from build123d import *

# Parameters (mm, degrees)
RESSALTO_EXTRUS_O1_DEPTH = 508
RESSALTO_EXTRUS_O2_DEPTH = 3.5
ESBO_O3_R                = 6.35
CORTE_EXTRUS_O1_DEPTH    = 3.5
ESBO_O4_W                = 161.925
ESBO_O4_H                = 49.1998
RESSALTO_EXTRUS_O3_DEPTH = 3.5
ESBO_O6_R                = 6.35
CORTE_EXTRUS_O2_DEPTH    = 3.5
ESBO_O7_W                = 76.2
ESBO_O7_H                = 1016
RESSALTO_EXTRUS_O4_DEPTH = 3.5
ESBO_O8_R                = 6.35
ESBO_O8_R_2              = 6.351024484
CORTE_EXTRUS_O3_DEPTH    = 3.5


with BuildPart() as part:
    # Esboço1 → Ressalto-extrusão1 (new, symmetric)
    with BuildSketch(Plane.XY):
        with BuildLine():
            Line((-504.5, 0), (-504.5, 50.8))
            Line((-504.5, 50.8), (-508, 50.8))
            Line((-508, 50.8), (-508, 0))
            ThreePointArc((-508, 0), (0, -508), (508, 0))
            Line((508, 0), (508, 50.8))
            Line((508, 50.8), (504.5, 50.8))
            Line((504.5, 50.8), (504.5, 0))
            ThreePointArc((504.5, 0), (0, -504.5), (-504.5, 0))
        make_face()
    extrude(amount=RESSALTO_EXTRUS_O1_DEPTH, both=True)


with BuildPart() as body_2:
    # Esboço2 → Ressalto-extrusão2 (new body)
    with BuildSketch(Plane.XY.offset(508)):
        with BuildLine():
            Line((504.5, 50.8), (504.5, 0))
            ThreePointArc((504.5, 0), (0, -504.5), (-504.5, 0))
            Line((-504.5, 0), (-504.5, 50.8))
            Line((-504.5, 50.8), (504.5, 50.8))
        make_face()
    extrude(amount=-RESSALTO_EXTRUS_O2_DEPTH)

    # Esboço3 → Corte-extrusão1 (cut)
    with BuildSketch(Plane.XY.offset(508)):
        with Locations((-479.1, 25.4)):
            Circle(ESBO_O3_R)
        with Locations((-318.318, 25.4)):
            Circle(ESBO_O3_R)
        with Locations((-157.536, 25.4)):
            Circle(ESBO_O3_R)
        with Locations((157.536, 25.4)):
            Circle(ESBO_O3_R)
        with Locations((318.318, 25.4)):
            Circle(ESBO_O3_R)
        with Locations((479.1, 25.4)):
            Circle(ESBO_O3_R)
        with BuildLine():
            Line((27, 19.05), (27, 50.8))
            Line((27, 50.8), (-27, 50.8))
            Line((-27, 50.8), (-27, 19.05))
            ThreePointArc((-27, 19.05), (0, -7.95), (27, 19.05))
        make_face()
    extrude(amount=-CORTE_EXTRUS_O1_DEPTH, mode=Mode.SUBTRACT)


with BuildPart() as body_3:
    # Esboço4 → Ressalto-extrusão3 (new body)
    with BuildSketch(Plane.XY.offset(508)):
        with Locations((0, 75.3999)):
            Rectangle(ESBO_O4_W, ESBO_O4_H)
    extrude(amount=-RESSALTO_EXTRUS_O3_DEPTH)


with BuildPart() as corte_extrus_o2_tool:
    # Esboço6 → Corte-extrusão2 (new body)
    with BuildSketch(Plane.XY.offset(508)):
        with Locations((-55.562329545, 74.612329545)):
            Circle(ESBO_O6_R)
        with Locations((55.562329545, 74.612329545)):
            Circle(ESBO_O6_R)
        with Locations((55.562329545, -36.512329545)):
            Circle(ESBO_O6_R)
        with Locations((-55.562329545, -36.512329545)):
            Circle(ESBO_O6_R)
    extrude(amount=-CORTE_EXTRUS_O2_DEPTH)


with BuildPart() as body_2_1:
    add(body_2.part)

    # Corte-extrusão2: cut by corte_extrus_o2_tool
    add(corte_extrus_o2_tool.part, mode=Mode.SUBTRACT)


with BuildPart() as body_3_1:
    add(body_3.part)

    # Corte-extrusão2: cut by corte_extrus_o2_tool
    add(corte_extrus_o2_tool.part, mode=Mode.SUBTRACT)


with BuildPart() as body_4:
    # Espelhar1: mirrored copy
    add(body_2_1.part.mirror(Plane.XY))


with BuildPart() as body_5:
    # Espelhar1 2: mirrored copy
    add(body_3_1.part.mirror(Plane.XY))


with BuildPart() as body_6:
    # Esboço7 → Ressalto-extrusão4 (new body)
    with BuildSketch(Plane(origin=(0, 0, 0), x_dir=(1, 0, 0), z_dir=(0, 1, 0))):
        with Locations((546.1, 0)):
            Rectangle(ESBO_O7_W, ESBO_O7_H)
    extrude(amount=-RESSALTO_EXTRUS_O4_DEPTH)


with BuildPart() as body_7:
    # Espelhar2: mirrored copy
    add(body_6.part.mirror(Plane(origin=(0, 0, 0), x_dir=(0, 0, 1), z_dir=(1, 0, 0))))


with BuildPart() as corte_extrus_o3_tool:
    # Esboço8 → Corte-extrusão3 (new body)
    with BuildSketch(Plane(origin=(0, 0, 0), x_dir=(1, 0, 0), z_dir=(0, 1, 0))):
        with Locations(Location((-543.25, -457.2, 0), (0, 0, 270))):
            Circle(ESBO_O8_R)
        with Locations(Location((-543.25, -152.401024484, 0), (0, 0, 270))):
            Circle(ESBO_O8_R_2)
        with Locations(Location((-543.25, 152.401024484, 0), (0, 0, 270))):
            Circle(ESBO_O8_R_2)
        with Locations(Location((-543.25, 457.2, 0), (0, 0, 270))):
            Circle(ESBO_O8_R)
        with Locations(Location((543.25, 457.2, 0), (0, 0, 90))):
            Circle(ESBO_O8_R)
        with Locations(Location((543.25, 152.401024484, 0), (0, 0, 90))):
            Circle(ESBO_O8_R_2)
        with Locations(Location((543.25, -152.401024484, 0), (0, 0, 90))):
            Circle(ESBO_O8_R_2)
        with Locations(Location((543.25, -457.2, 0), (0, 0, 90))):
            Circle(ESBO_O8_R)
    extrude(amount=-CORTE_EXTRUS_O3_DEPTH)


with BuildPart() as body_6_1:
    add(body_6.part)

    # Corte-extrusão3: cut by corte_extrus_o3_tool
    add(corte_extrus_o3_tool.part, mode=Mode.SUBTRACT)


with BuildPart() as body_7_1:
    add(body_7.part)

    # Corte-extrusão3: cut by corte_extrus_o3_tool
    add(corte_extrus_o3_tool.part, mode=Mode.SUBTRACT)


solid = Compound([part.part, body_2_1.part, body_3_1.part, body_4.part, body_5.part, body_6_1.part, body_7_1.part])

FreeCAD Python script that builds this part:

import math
import FreeCAD as App
import Part
import Sketcher
from FreeCAD import Vector
Q = App.Units.Quantity


def add_polygon(sketch, points):
    """Adds a closed chain of lines whose ends are joined by coincident constraints."""
    first, n = sketch.GeometryCount, len(points)
    for a, b in zip(points, points[1:] + points[:1]):
        sketch.addGeometry(Part.LineSegment(App.Vector(*a, 0), App.Vector(*b, 0)), False)
    for i in range(n):
        sketch.addConstraint(Sketcher.Constraint("Coincident", first + i, 2, first + (i + 1) % n, 1))

doc = App.newDocument("Part")
body = doc.addObject("PartDesign::Body", "Body")

# Sketch on XY plane
sketch1 = body.newObject("Sketcher::SketchObject", "Sketch")
sketch1.AttachmentSupport = (doc.getObject("XY_Plane"), [""])
sketch1.MapMode = "FlatFace"
sketch1.addGeometry(Part.LineSegment(Vector(-504.5, 0, 0), Vector(-504.5, 50.8, 0)), False)
sketch1.addGeometry(Part.LineSegment(Vector(-504.5, 50.8, 0), Vector(-508, 50.8, 0)), False)
sketch1.addGeometry(Part.LineSegment(Vector(-508, 50.8, 0), Vector(-508, 0, 0)), False)
sketch1.addGeometry(Part.ArcOfCircle(Part.Circle(Vector(0, 0, 0), Vector(0, 0, 1), 508), math.radians(180), math.radians(360)), False)
sketch1.addGeometry(Part.LineSegment(Vector(508, 0, 0), Vector(508, 50.8, 0)), False)
sketch1.addGeometry(Part.LineSegment(Vector(508, 50.8, 0), Vector(504.5, 50.8, 0)), False)
sketch1.addGeometry(Part.LineSegment(Vector(504.5, 50.8, 0), Vector(504.5, 0, 0)), False)
sketch1.addGeometry(Part.ArcOfCircle(Part.Circle(Vector(0, 0, 0), Vector(0, 0, 1), 504.5), math.radians(180), math.radians(360)), False)
sketch1.addConstraint(Sketcher.Constraint("Coincident", 0, 2, 1, 1))
sketch1.addConstraint(Sketcher.Constraint("Coincident", 1, 2, 2, 1))
sketch1.addConstraint(Sketcher.Constraint("Tangent", 2, 2, 3, 1))
sketch1.addConstraint(Sketcher.Constraint("Tangent", 3, 2, 4, 1))
sketch1.addConstraint(Sketcher.Constraint("Coincident", 4, 2, 5, 1))
sketch1.addConstraint(Sketcher.Constraint("Coincident", 5, 2, 6, 1))
sketch1.addConstraint(Sketcher.Constraint("Tangent", 6, 2, 7, 2))
sketch1.addConstraint(Sketcher.Constraint("Tangent", 7, 1, 0, 1))
sketch1.addConstraint(Sketcher.Constraint("Vertical", 0))
sketch1.addConstraint(Sketcher.Constraint("Horizontal", 1))
sketch1.addConstraint(Sketcher.Constraint("Vertical", 2))
sketch1.addConstraint(Sketcher.Constraint("Vertical", 4))
sketch1.addConstraint(Sketcher.Constraint("Horizontal", 5))
sketch1.addConstraint(Sketcher.Constraint("Vertical", 6))
sketch1.addConstraint(Sketcher.Constraint("Coincident", 3, 3, -1, 1))
sketch1.addConstraint(Sketcher.Constraint("Coincident", 7, 3, -1, 1))
sketch1.addConstraint(Sketcher.Constraint("Horizontal", 1, 2, 4, 2))
sketch1.addConstraint(Sketcher.Constraint("Radius", 3, Q("20 in")))
sketch1.addConstraint(Sketcher.Constraint("DistanceY", 0, 1, 0, 2, Q("2 in")))
sketch1.addConstraint(Sketcher.Constraint("Radius", 7, Q("504.5 mm")))
pad1 = body.newObject("PartDesign::Pad", "Pad")
pad1.Profile = sketch1
pad1.Length = Q("40 in")
pad1.Midplane = True
body2 = doc.addObject("PartDesign::Body", "Body001")

# Sketch on XY plane
sketch2 = body2.newObject("Sketcher::SketchObject", "Sketch001")
sketch2.AttachmentSupport = (doc.getObject("XY_Plane001"), [""])
sketch2.MapMode = "FlatFace"
sketch2.AttachmentOffset = App.Placement(Vector(0, 0, 20 * 25.4), App.Rotation())
sketch2.addGeometry(Part.LineSegment(Vector(504, 0, 0), Vector(504, 51, 0)), False)
sketch2.addGeometry(Part.LineSegment(Vector(504, 51, 0), Vector(-504, 51, 0)), False)
sketch2.addGeometry(Part.LineSegment(Vector(-504, 51, 0), Vector(-504, 0, 0)), False)
sketch2.addGeometry(Part.ArcOfCircle(Part.Circle(Vector(0, 0, 0), Vector(0, 0, 1), 504), math.radians(180), math.radians(360)), False)
sketch2.addConstraint(Sketcher.Constraint("Coincident", 0, 2, 1, 1))
sketch2.addConstraint(Sketcher.Constraint("Coincident", 1, 2, 2, 1))
sketch2.addConstraint(Sketcher.Constraint("Tangent", 2, 2, 3, 1))
sketch2.addConstraint(Sketcher.Constraint("Tangent", 3, 2, 0, 1))
sketch2.addConstraint(Sketcher.Constraint("Vertical", 0))
sketch2.addConstraint(Sketcher.Constraint("Horizontal", 1))
sketch2.addConstraint(Sketcher.Constraint("Vertical", 2))
sketch2.addConstraint(Sketcher.Constraint("Coincident", 3, 3, -1, 1))
sketch2.addConstraint(Sketcher.Constraint("DistanceY", 0, 1, 0, 2, Q("2 in")))
sketch2.addConstraint(Sketcher.Constraint("Radius", 3, Q("504.5 mm")))
pad2 = body2.newObject("PartDesign::Pad", "Pad001")
pad2.Profile = sketch2
pad2.Length = 3.5
pad2.Reversed = True

# Sketch on XY plane
sketch3 = body2.newObject("Sketcher::SketchObject", "Sketch002")
sketch3.AttachmentSupport = (doc.getObject("XY_Plane001"), [""])
sketch3.MapMode = "FlatFace"
sketch3.AttachmentOffset = App.Placement(Vector(0, 0, 20 * 25.4), App.Rotation())
sketch3.addGeometry(Part.Circle(Vector(-479, 25, 0), Vector(0, 0, 1), 6), False)
sketch3.addGeometry(Part.Circle(Vector(-318, 25, 0), Vector(0, 0, 1), 6), False)
sketch3.addGeometry(Part.Circle(Vector(-158, 25, 0), Vector(0, 0, 1), 6), False)
sketch3.addGeometry(Part.Circle(Vector(158, 25, 0), Vector(0, 0, 1), 6), False)
sketch3.addGeometry(Part.Circle(Vector(318, 25, 0), Vector(0, 0, 1), 6), False)
sketch3.addGeometry(Part.Circle(Vector(479, 25, 0), Vector(0, 0, 1), 6), False)
sketch3.addGeometry(Part.LineSegment(Vector(27, 19, 0), Vector(27, 51, 0)), False)
sketch3.addGeometry(Part.LineSegment(Vector(27, 51, 0), Vector(-27, 51, 0)), False)
sketch3.addGeometry(Part.LineSegment(Vector(-27, 51, 0), Vector(-27, 19, 0)), False)
sketch3.addGeometry(Part.ArcOfCircle(Part.Circle(Vector(0, 19, 0), Vector(0, 0, 1), 27), math.radians(180), math.radians(360)), False)
sketch3.addConstraint(Sketcher.Constraint("Coincident", 6, 2, 7, 1))
sketch3.addConstraint(Sketcher.Constraint("Coincident", 7, 2, 8, 1))
sketch3.addConstraint(Sketcher.Constraint("Tangent", 8, 2, 9, 1))
sketch3.addConstraint(Sketcher.Constraint("Tangent", 9, 2, 6, 1))
sketch3.addConstraint(Sketcher.Constraint("Vertical", 6))
sketch3.addConstraint(Sketcher.Constraint("Horizontal", 7))
sketch3.addConstraint(Sketcher.Constraint("Vertical", 8))
sketch3.addConstraint(Sketcher.Constraint("Equal", 0, 1))
sketch3.addConstraint(Sketcher.Constraint("Equal", 1, 2))
sketch3.addConstraint(Sketcher.Constraint("Equal", 2, 3))
sketch3.addConstraint(Sketcher.Constraint("Equal", 3, 4))
sketch3.addConstraint(Sketcher.Constraint("Equal", 4, 5))
sketch3.addConstraint(Sketcher.Constraint("Symmetric", 2, 3, 3, 3, -2))
sketch3.addConstraint(Sketcher.Constraint("Symmetric", 1, 3, 4, 3, -2))
sketch3.addConstraint(Sketcher.Constraint("Symmetric", 0, 3, 5, 3, -2))
sketch3.addConstraint(Sketcher.Constraint("PointOnObject", 9, 3, -2))
sketch3.addConstraint(Sketcher.Constraint("Horizontal", 0, 3, 1, 3))
sketch3.addConstraint(Sketcher.Constraint("Horizontal", 1, 3, 2, 3))
sketch3.addConstraint(Sketcher.Constraint("Diameter", 0, Q("0.5 in")))
sketch3.addConstraint(Sketcher.Constraint("DistanceY", -1, 1, 0, 3, Q("1 in")))
sketch3.addConstraint(Sketcher.Constraint("DistanceY", -1, 1, 6, 2, Q("2 in")))
sketch3.addConstraint(Sketcher.Constraint("DistanceY", 6, 1, 6, 2, Q("1.25 in")))
sketch3.addConstraint(Sketcher.Constraint("Radius", 9, Q("27 mm")))
sketch3.addConstraint(Sketcher.Constraint("DistanceX", 0, 3, 1, 3, Q("6.33 in")))
sketch3.addConstraint(Sketcher.Constraint("DistanceX", 1, 3, 2, 3, Q("6.33 in")))
sketch3.addConstraint(Sketcher.Constraint("DistanceX", 0, 3, -1, 1, Q("479.1 mm")))
pocket1 = body2.newObject("PartDesign::Pocket", "Pocket")
pocket1.Profile = sketch3
pocket1.Length = 3.5
body3 = doc.addObject("PartDesign::Body", "Body002")

# Sketch on XY plane
sketch4 = body3.newObject("Sketcher::SketchObject", "Sketch003")
sketch4.AttachmentSupport = (doc.getObject("XY_Plane002"), [""])
sketch4.MapMode = "FlatFace"
sketch4.AttachmentOffset = App.Placement(Vector(0, 0, 20 * 25.4), App.Rotation())
add_polygon(sketch4, [(-81, 100), (-81, 51), (81, 51), (81, 100)])  # lines 0-3
sketch4.addConstraint(Sketcher.Constraint("Vertical", 0))
sketch4.addConstraint(Sketcher.Constraint("Horizontal", 1))
sketch4.addConstraint(Sketcher.Constraint("Vertical", 2))
sketch4.addConstraint(Sketcher.Constraint("Horizontal", 3))
sketch4.addConstraint(Sketcher.Constraint("DistanceY", -1, 1, 0, 2, Q("2 in")))
sketch4.addConstraint(Sketcher.Constraint("DistanceX", 1, 1, 1, 2, Q("6.375 in")))
sketch4.addConstraint(Sketcher.Constraint("DistanceY", 0, 2, 0, 1, Q("1.937 in")))
sketch4.addConstraint(Sketcher.Constraint("DistanceX", 0, 2, -1, 1, Q("3.1875 in")))
pad3 = body3.newObject("PartDesign::Pad", "Pad002")
pad3.Profile = sketch4
pad3.Length = 3.5
pad3.Reversed = True
body4 = doc.addObject("PartDesign::Body", "Body003")
body4.AllowCompound = True

# Sketch on XY plane
sketch5 = body4.newObject("Sketcher::SketchObject", "Sketch004")
sketch5.AttachmentSupport = (doc.getObject("XY_Plane003"), [""])
sketch5.MapMode = "FlatFace"
sketch5.AttachmentOffset = App.Placement(Vector(0, 0, 20 * 25.4), App.Rotation())
sketch5.addGeometry(Part.Circle(Vector(-56, 75, 0), Vector(0, 0, 1), 6), False)
sketch5.addGeometry(Part.Circle(Vector(56, 75, 0), Vector(0, 0, 1), 6), False)
sketch5.addGeometry(Part.Circle(Vector(56, -37, 0), Vector(0, 0, 1), 6), False)
sketch5.addGeometry(Part.Circle(Vector(-56, -37, 0), Vector(0, 0, 1), 6), False)
sketch5.addConstraint(Sketcher.Constraint("Equal", 0, 1))
sketch5.addConstraint(Sketcher.Constraint("Equal", 1, 2))
sketch5.addConstraint(Sketcher.Constraint("Equal", 2, 3))
sketch5.addConstraint(Sketcher.Constraint("Symmetric", 0, 3, 1, 3, -2))
sketch5.addConstraint(Sketcher.Constraint("Symmetric", 2, 3, 3, 3, -2))
sketch5.addConstraint(Sketcher.Constraint("Vertical", 1, 3, 2, 3))
sketch5.addConstraint(Sketcher.Constraint("Diameter", 0, Q("0.5 in")))
sketch5.addConstraint(Sketcher.Constraint("DistanceX", 0, 3, -1, 1, Q("55.56233 mm")))
sketch5.addConstraint(Sketcher.Constraint("DistanceY", -1, 1, 0, 3, Q("74.61233 mm")))
sketch5.addConstraint(Sketcher.Constraint("DistanceY", 2, 3, -1, 1, Q("36.51233 mm")))
pad4 = body4.newObject("PartDesign::Pad", "Pad003")
pad4.Profile = sketch5
pad4.Length = 3.5
pad4.Reversed = True
doc.recompute()

body5 = doc.addObject("PartDesign::Body", "Body004")
body5.BaseFeature = body4
boolean = body2.newObject("PartDesign::Boolean", "Boolean")
boolean.Type = "Cut"
boolean.addObjects([body5])
doc.recompute()

boolean2 = body3.newObject("PartDesign::Boolean", "Boolean001")
boolean2.Type = "Cut"
boolean2.addObjects([body4])
body6 = doc.addObject("PartDesign::Body", "Body005")
doc.recompute()

mirroring = doc.addObject("Part::Mirroring", "Mirroring")
mirroring.Source = body2
mirroring.Base = Vector(0, 0, 0)
mirroring.Normal = Vector(0, 0, 1)
body6.BaseFeature = mirroring
doc.recompute()
body7 = doc.addObject("PartDesign::Body", "Body006")
doc.recompute()

mirroring2 = doc.addObject("Part::Mirroring", "Mirroring001")
mirroring2.Source = body3
mirroring2.Base = Vector(0, 0, 0)
mirroring2.Normal = Vector(0, 0, 1)
body7.BaseFeature = mirroring2
doc.recompute()
body8 = doc.addObject("PartDesign::Body", "Body007")

# Sketch on XZ plane
sketch6 = body8.newObject("Sketcher::SketchObject", "Sketch005")
sketch6.AttachmentSupport = (doc.getObject("XZ_Plane007"), [""])
sketch6.MapMode = "FlatFace"
add_polygon(sketch6, [(508, -508), (508, 508), (584, 508), (584, -508)])  # lines 0-3
sketch6.addConstraint(Sketcher.Constraint("Vertical", 0))
sketch6.addConstraint(Sketcher.Constraint("Horizontal", 1))
sketch6.addConstraint(Sketcher.Constraint("Vertical", 2))
sketch6.addConstraint(Sketcher.Constraint("Horizontal", 3))
sketch6.addConstraint(Sketcher.Constraint("DistanceX", 1, 1, 1, 2, Q("3 in")))
sketch6.addConstraint(Sketcher.Constraint("DistanceY", 0, 1, 0, 2, Q("40 in")))
sketch6.addConstraint(Sketcher.Constraint("DistanceX", -1, 1, 0, 2, Q("20 in")))
sketch6.addConstraint(Sketcher.Constraint("DistanceY", -1, 1, 0, 2, Q("20 in")))
pad5 = body8.newObject("PartDesign::Pad", "Pad004")
pad5.Profile = sketch6
pad5.Length = 3.5
body9 = doc.addObject("PartDesign::Body", "Body008")
doc.recompute()

mirroring3 = doc.addObject("Part::Mirroring", "Mirroring002")
mirroring3.Source = body8
mirroring3.Base = Vector(0, 0, 0)
mirroring3.Normal = Vector(1, 0, 0)
body9.BaseFeature = mirroring3
doc.recompute()
body10 = doc.addObject("PartDesign::Body", "Body009")
body10.AllowCompound = True

# Sketch on XZ plane
sketch7 = body10.newObject("Sketcher::SketchObject", "Sketch006")
sketch7.AttachmentSupport = (doc.getObject("XZ_Plane009"), [""])
sketch7.MapMode = "FlatFace"
sketch7.addGeometry(Part.Circle(Vector(-543, 457, 0), Vector(0, 0, 1), 6), False)
sketch7.addGeometry(Part.Circle(Vector(-543, 152, 0), Vector(0, 0, 1), 6), False)
sketch7.addGeometry(Part.Circle(Vector(-543, -152, 0), Vector(0, 0, 1), 6), False)
sketch7.addGeometry(Part.Circle(Vector(-543, -457, 0), Vector(0, 0, 1), 6), False)
sketch7.addGeometry(Part.Circle(Vector(543, -457, 0), Vector(0, 0, 1), 6), False)
sketch7.addGeometry(Part.Circle(Vector(543, -152, 0), Vector(0, 0, 1), 6), False)
sketch7.addGeometry(Part.Circle(Vector(543, 152, 0), Vector(0, 0, 1), 6), False)
sketch7.addGeometry(Part.Circle(Vector(543, 457, 0), Vector(0, 0, 1), 6), False)
sketch7.addConstraint(Sketcher.Constraint("Equal", 1, 2))
sketch7.addConstraint(Sketcher.Constraint("Equal", 0, 3))
sketch7.addConstraint(Sketcher.Constraint("Equal", 3, 4))
sketch7.addConstraint(Sketcher.Constraint("Equal", 2, 5))
sketch7.addConstraint(Sketcher.Constraint("Equal", 5, 6))
sketch7.addConstraint(Sketcher.Constraint("Equal", 4, 7))
sketch7.addConstraint(Sketcher.Constraint("Symmetric", 0, 3, 4, 3, -1, 1))
sketch7.addConstraint(Sketcher.Constraint("Symmetric", 1, 3, 5, 3, -1, 1))
sketch7.addConstraint(Sketcher.Constraint("Symmetric", 2, 3, 6, 3, -1, 1))
sketch7.addConstraint(Sketcher.Constraint("Symmetric", 3, 3, 7, 3, -1, 1))
sketch7.addConstraint(Sketcher.Constraint("Symmetric", 3, 3, 4, 3, -2))
sketch7.addConstraint(Sketcher.Constraint("Symmetric", 2, 3, 5, 3, -2))
sketch7.addConstraint(Sketcher.Constraint("Vertical", 0, 3, 1, 3))
sketch7.addConstraint(Sketcher.Constraint("Diameter", 0, Q("0.5 in")))
sketch7.addConstraint(Sketcher.Constraint("DistanceY", -1, 1, 0, 3, Q("18 in")))
sketch7.addConstraint(Sketcher.Constraint("Diameter", 1, Q("12.702049 mm")))
sketch7.addConstraint(Sketcher.Constraint("DistanceX", 0, 3, -1, 1, Q("543.25 mm")))
sketch7.addConstraint(Sketcher.Constraint("DistanceY", 2, 3, 1, 3, Q("304.802049 mm")))
pad6 = body10.newObject("PartDesign::Pad", "Pad005")
pad6.Profile = sketch7
pad6.Length = 3.5
doc.recompute()

body11 = doc.addObject("PartDesign::Body", "Body010")
body11.BaseFeature = body10
boolean3 = body8.newObject("PartDesign::Boolean", "Boolean002")
boolean3.Type = "Cut"
boolean3.addObjects([body11])
doc.recompute()

boolean4 = body9.newObject("PartDesign::Boolean", "Boolean003")
boolean4.Type = "Cut"
boolean4.addObjects([body10])
mirroring.Visibility = False
mirroring2.Visibility = False
mirroring3.Visibility = False

doc.recompute()
